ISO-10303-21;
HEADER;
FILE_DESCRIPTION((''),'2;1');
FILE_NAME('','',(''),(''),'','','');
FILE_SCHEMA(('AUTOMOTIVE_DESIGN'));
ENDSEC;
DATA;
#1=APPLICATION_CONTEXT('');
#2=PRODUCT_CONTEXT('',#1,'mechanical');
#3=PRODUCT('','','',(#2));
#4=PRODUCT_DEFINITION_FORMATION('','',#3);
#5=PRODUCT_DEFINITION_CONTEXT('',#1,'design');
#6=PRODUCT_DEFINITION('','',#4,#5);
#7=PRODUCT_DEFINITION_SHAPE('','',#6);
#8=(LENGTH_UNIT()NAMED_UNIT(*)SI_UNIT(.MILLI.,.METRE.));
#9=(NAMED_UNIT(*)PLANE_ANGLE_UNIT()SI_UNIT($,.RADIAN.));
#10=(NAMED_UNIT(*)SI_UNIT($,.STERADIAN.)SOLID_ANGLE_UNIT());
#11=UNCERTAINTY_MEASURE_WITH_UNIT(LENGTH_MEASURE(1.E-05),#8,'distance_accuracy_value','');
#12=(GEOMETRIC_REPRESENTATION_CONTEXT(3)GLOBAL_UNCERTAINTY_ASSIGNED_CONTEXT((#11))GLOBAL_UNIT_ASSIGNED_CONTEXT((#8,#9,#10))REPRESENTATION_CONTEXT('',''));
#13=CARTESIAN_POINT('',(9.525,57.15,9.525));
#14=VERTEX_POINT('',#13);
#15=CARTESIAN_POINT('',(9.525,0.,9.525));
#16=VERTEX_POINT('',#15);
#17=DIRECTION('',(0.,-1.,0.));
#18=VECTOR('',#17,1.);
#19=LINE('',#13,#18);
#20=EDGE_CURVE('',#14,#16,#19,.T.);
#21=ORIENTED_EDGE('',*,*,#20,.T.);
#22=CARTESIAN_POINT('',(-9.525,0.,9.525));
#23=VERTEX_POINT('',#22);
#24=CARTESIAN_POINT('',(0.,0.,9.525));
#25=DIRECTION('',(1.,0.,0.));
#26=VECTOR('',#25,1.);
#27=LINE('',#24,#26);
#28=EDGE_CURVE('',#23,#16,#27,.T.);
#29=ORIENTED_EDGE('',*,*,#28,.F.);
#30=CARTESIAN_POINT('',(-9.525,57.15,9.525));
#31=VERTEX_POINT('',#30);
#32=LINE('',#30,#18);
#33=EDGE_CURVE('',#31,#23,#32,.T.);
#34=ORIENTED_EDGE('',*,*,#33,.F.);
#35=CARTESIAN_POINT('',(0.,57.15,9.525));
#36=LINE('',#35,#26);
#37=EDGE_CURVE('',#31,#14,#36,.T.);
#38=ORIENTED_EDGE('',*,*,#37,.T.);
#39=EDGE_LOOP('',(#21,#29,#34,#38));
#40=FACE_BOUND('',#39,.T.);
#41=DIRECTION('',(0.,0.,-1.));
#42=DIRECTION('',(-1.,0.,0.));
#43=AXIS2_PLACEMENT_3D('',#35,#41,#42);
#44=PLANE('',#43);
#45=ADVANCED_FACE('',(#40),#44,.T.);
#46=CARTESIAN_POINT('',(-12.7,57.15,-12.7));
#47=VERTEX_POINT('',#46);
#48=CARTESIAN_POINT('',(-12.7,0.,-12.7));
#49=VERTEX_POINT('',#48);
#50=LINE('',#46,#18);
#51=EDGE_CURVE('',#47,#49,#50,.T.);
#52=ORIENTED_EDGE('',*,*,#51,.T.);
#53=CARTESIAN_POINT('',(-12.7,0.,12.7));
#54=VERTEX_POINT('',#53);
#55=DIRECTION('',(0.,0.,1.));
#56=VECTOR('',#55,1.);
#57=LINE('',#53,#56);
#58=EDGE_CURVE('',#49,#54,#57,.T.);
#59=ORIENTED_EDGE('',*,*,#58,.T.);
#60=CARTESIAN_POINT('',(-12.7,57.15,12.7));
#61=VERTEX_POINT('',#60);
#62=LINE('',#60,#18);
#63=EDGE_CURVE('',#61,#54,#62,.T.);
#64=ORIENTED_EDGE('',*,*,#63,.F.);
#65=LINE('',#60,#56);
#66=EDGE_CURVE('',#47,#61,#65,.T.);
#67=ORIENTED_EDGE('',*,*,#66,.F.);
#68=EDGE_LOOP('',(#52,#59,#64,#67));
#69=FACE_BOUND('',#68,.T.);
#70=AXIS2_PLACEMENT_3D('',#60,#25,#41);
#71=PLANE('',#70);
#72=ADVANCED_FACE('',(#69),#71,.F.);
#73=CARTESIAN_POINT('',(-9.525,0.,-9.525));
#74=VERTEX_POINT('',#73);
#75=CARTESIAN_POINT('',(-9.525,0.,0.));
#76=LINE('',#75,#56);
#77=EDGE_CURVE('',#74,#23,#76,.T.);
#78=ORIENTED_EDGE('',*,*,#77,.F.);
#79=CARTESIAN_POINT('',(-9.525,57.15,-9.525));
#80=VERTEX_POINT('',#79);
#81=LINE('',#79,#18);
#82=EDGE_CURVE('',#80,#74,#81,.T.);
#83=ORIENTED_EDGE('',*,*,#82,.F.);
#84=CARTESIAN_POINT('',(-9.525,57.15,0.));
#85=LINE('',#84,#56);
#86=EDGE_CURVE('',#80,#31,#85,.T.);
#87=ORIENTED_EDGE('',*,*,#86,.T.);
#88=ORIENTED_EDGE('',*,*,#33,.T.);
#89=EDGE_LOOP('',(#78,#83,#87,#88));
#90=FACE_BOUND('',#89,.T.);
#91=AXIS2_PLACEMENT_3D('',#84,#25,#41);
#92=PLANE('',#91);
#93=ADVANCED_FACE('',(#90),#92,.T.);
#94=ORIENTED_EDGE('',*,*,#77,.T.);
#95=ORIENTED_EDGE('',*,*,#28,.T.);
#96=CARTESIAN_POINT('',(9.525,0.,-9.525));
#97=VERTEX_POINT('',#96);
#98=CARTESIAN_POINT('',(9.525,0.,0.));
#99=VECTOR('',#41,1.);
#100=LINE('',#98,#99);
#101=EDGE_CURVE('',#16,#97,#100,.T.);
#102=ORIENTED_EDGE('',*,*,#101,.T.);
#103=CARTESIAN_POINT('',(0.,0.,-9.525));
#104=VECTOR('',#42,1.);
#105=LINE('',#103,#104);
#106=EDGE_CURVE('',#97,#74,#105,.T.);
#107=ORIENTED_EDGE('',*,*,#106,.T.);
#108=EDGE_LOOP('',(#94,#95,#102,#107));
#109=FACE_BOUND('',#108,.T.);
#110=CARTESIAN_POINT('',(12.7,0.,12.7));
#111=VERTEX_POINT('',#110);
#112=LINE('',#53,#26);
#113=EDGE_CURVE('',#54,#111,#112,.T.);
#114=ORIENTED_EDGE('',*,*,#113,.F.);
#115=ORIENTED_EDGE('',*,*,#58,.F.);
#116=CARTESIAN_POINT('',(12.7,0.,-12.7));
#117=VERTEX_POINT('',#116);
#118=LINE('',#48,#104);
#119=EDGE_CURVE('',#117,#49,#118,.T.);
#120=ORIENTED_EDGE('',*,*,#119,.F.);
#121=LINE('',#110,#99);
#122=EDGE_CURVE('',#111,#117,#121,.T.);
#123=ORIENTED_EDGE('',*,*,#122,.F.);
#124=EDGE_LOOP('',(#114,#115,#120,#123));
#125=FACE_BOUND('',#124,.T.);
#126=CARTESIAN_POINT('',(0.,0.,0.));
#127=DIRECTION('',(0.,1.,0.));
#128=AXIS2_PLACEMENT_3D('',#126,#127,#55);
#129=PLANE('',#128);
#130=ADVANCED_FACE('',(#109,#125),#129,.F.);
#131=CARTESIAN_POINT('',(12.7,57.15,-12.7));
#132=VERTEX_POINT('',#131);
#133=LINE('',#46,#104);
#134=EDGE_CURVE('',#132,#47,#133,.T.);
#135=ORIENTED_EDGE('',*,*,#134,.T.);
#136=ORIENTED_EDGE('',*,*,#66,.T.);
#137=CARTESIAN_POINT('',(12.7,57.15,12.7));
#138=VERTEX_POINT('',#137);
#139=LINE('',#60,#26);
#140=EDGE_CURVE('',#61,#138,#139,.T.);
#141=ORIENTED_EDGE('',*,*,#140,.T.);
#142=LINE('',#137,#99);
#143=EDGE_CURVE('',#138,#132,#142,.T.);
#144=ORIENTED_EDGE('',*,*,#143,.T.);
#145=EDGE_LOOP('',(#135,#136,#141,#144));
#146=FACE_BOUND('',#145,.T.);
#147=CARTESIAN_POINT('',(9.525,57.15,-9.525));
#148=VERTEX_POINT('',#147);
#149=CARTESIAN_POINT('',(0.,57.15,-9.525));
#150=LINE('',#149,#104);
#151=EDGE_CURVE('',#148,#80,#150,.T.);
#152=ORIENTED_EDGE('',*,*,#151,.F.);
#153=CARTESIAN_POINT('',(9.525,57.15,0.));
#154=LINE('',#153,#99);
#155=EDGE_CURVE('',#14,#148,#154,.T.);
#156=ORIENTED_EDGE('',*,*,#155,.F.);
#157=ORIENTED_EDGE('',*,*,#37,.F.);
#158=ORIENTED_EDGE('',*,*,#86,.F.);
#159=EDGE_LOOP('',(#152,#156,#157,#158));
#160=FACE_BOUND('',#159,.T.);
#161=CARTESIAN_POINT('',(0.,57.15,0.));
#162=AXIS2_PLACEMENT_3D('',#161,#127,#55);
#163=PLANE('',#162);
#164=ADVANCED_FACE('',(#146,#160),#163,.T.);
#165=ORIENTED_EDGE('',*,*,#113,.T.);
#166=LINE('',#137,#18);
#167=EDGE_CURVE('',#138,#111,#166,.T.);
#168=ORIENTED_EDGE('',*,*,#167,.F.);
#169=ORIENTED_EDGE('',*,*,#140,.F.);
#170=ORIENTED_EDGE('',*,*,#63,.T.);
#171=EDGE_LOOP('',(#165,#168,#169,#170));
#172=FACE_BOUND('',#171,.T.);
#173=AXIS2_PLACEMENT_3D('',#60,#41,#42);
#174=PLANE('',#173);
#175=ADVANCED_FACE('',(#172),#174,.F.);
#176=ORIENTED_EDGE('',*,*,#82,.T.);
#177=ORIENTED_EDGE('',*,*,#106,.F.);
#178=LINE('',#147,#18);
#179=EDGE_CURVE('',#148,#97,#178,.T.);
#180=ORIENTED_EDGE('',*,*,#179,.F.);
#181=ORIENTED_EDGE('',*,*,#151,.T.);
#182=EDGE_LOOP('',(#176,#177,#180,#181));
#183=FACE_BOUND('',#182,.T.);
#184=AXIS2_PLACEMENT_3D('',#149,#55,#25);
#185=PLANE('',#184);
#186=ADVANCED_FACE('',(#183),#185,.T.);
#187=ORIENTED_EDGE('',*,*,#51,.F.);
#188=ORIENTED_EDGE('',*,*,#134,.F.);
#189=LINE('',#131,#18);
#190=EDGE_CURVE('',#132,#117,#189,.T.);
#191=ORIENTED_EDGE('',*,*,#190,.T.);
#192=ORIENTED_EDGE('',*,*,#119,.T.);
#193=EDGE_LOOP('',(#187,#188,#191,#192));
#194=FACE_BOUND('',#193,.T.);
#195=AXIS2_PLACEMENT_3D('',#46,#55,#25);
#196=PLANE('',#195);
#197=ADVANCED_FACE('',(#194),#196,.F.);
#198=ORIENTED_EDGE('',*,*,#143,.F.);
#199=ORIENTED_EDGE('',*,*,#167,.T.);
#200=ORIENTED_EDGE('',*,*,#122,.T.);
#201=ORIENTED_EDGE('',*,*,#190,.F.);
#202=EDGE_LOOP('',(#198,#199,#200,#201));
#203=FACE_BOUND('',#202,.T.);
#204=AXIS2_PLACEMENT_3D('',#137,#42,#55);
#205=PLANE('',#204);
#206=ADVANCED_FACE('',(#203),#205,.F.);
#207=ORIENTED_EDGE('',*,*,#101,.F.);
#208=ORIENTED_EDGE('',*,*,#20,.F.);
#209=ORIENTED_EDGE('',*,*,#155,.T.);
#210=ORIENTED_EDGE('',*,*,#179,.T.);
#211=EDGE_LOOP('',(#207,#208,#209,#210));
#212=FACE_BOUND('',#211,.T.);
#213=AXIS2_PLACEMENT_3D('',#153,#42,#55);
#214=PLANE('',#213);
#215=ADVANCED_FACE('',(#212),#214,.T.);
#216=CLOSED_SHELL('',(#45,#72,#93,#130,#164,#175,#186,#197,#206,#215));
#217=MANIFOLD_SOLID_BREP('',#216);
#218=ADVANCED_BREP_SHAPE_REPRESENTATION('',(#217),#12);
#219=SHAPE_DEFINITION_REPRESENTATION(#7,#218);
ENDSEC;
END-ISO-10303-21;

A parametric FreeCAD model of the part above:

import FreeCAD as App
import Part
import Sketcher

V = App.Vector
Q = App.Units.Quantity

doc = App.newDocument("Part")
params = doc.addObject("Spreadsheet::Sheet", "Params")
for row, (alias, value) in enumerate([
    ("sketch1_width", "1 in"),
    ("sketch1_width2", "0.75 in"),
    ("pad1_length", "2.25 in"),
], start=1):
    params.set(f"A{row}", alias)
    params.set(f"B{row}", "=" + value)
    params.setAlias(f"B{row}", alias)

body = doc.addObject("PartDesign::Body", "Body")

sketch1 = body.newObject("Sketcher::SketchObject", "Sketch")
sketch1.AttachmentSupport = (doc.getObject("XZ_Plane"), [""])
sketch1.MapMode = "FlatFace"
sketch1.addGeometry(Part.LineSegment(V(-12.7, -12.7, 0), V(-12.7, 12.7, 0)), False)
sketch1.addGeometry(Part.LineSegment(V(-12.7, 12.7, 0), V(12.7, 12.7, 0)), False)
sketch1.addGeometry(Part.LineSegment(V(12.7, 12.7, 0), V(12.7, -12.7, 0)), False)
sketch1.addGeometry(Part.LineSegment(V(12.7, -12.7, 0), V(-12.7, -12.7, 0)), False)
sketch1.addGeometry(Part.LineSegment(V(9.525, 9.525, 0), V(-9.525, 9.525, 0)), False)
sketch1.addGeometry(Part.LineSegment(V(-9.525, 9.525, 0), V(-9.525, -9.525, 0)), False)
sketch1.addGeometry(Part.LineSegment(V(-9.525, -9.525, 0), V(9.525, -9.525, 0)), False)
sketch1.addGeometry(Part.LineSegment(V(9.525, -9.525, 0), V(9.525, 9.525, 0)), False)
sketch1.addConstraint(Sketcher.Constraint("Coincident", 0, 2, 1, 1))
sketch1.addConstraint(Sketcher.Constraint("Coincident", 1, 2, 2, 1))
sketch1.addConstraint(Sketcher.Constraint("Coincident", 2, 2, 3, 1))
sketch1.addConstraint(Sketcher.Constraint("Coincident", 3, 2, 0, 1))
sketch1.addConstraint(Sketcher.Constraint("Coincident", 4, 2, 5, 1))
sketch1.addConstraint(Sketcher.Constraint("Coincident", 5, 2, 6, 1))
sketch1.addConstraint(Sketcher.Constraint("Coincident", 6, 2, 7, 1))
sketch1.addConstraint(Sketcher.Constraint("Coincident", 7, 2, 4, 1))
sketch1.addConstraint(Sketcher.Constraint("Vertical", 0))
sketch1.addConstraint(Sketcher.Constraint("Horizontal", 1))
sketch1.addConstraint(Sketcher.Constraint("Vertical", 2))
sketch1.addConstraint(Sketcher.Constraint("Horizontal", 3))
sketch1.addConstraint(Sketcher.Constraint("Horizontal", 4))
sketch1.addConstraint(Sketcher.Constraint("Vertical", 5))
sketch1.addConstraint(Sketcher.Constraint("Horizontal", 6))
sketch1.addConstraint(Sketcher.Constraint("Vertical", 7))
sketch1.addConstraint(Sketcher.Constraint("Symmetric", 0, 2, 2, 2, -1, 1))
sketch1.addConstraint(Sketcher.Constraint("Symmetric", 4, 2, 6, 2, -1, 1))
sketch1.addConstraint(Sketcher.Constraint("Equal", 3, 0))
sketch1.addConstraint(Sketcher.Constraint("Equal", 6, 5))
sketch1.addConstraint(Sketcher.Constraint("DistanceX", 1, 1, 1, 2, Q("1 in")))
sketch1.addConstraint(Sketcher.Constraint("DistanceX", 4, 2, 4, 1, Q("0.75 in")))
sketch1.setExpression("Constraints[20]", "Params.sketch1_width")
sketch1.setExpression("Constraints[21]", "Params.sketch1_width2")
pad1 = body.newObject("PartDesign::Pad", "Pad")
pad1.Profile = sketch1
pad1.setExpression("Length", "Params.pad1_length")
pad1.Reversed = True

doc.recompute()
